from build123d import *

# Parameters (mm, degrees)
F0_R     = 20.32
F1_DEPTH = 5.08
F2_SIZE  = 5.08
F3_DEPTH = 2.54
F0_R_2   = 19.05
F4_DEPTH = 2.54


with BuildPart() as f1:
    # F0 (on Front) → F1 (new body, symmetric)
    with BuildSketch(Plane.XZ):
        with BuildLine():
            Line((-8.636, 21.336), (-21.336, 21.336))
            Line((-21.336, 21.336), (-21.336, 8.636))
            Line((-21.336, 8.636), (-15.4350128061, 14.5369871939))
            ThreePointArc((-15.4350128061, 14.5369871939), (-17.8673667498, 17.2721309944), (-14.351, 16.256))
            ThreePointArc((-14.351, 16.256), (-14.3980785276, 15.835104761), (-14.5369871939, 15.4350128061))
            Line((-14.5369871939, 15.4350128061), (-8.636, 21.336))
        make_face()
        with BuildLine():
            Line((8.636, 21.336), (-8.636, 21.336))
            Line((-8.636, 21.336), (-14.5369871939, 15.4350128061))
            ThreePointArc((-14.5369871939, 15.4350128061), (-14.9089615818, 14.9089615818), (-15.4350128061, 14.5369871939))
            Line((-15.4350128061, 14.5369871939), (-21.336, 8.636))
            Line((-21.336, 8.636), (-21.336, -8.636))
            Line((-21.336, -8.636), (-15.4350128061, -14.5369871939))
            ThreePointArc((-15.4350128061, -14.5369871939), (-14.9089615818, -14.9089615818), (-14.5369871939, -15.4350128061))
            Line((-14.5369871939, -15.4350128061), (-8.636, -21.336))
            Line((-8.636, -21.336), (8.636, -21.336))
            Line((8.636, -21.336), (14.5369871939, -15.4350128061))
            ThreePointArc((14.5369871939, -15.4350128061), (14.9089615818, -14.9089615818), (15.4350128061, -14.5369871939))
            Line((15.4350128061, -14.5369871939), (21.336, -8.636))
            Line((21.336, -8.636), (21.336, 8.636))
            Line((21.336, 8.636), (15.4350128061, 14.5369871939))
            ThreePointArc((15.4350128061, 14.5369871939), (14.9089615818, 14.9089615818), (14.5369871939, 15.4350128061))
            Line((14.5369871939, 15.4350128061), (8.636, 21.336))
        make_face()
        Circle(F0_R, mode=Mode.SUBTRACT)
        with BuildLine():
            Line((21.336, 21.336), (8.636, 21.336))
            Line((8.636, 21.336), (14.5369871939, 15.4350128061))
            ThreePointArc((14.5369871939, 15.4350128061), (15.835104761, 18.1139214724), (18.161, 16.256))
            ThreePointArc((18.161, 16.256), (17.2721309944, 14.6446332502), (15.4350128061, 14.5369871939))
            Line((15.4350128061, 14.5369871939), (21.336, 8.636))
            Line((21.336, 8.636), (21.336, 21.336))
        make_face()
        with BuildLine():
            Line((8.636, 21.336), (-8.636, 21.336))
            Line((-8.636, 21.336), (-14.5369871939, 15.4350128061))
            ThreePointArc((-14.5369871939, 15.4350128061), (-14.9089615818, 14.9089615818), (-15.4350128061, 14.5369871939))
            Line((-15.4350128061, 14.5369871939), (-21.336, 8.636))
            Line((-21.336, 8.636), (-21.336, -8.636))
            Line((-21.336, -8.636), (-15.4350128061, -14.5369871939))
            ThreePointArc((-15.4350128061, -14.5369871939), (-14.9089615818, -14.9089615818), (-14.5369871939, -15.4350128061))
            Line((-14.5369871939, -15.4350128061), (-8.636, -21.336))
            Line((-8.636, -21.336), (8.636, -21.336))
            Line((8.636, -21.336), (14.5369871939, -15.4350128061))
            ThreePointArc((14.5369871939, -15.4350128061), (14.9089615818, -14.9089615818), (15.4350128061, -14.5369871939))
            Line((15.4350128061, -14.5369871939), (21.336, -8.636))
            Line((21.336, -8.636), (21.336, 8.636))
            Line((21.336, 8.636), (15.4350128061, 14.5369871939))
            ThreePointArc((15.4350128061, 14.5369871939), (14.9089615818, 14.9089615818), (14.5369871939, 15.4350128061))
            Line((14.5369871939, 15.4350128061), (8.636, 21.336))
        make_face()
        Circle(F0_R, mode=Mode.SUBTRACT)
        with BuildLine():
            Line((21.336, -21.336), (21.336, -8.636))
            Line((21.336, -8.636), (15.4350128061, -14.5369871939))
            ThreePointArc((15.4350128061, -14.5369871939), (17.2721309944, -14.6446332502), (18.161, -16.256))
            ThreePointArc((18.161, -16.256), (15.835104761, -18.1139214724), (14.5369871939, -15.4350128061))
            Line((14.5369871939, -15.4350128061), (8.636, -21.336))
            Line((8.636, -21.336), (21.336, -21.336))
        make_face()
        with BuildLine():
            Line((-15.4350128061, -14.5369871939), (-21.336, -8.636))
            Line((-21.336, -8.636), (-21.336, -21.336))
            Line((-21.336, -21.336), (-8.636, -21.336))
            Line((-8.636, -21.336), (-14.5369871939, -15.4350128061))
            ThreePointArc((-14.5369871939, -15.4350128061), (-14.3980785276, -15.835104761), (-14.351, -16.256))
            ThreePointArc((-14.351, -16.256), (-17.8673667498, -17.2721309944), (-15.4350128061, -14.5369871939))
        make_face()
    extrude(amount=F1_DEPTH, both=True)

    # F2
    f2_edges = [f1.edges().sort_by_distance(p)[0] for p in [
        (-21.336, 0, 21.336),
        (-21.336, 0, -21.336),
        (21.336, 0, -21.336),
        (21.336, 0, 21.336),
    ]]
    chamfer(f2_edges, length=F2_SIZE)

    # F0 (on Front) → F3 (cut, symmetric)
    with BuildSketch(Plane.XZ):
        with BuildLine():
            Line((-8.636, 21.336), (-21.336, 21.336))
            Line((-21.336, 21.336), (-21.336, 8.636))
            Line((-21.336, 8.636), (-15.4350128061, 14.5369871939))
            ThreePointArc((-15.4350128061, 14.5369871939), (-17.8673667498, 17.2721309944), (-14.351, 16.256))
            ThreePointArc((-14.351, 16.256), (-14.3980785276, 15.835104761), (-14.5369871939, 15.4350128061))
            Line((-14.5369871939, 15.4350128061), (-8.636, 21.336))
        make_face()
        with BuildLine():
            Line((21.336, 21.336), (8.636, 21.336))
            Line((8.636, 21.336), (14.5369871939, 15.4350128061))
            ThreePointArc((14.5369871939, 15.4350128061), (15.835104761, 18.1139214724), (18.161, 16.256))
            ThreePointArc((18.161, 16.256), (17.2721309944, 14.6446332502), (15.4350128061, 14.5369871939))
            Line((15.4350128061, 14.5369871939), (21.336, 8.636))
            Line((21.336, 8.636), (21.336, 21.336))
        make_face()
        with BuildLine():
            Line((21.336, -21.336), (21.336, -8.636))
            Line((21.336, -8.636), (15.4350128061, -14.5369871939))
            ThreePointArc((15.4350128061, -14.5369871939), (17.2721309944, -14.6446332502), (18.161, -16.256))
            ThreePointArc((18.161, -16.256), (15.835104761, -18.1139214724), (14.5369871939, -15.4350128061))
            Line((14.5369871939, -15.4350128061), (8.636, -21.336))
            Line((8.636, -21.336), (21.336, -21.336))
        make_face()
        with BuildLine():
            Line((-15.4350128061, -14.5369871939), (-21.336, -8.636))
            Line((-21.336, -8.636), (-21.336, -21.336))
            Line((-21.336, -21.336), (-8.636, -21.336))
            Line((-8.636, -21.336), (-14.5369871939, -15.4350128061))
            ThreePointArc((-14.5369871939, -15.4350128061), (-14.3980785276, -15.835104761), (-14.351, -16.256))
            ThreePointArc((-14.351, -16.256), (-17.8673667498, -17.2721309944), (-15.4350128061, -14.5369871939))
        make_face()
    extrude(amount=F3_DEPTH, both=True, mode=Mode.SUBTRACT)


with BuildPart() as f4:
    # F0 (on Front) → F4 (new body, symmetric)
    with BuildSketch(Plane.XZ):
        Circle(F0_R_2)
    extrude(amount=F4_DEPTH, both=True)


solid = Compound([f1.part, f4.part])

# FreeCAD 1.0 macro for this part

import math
import FreeCAD as App
import Part
import Sketcher

V = App.Vector
Q = App.Units.Quantity


def edges_at(feature, points):
    """Names of the edges that pass closest to the given points."""
    edges = feature.Shape.Edges
    near = lambda p: min(range(len(edges)), key=lambda i: edges[i].distToShape(Part.Vertex(*p))[0])
    return sorted({f"Edge{near(p) + 1}" for p in points})

doc = App.newDocument("Part")
body = doc.addObject("PartDesign::Body", "Body")

# Sketch on XZ plane
sketch1 = body.newObject("Sketcher::SketchObject", "Sketch")
sketch1.AttachmentSupport = (doc.getObject("XZ_Plane"), [""])
sketch1.MapMode = "FlatFace"
sketch1.addGeometry([
    Part.LineSegment(V(-21.3, 21.3, 0), V(-21.3, -21.3, 0)),  # 0
    Part.LineSegment(V(-21.3, -21.3, 0), V(21.3, -21.3, 0)),  # 1
    Part.LineSegment(V(21.3, -21.3, 0), V(21.3, 21.3, 0)),  # 2
    Part.LineSegment(V(21.3, 21.3, 0), V(-21.3, 21.3, 0)),  # 3
    Part.ArcOfCircle(Part.Circle(V(-16.3, -16.3, 0), V(0, 0, 1), 1.9), math.radians(26), math.radians(64)),  # 4
    Part.ArcOfCircle(Part.Circle(V(-16.3, -16.3, 0), V(0, 0, 1), 1.9), math.radians(0), math.radians(26)),  # 5
    Part.ArcOfCircle(Part.Circle(V(-16.3, -16.3, 0), V(0, 0, 1), 1.9), math.radians(64), math.radians(360)),  # 6
    Part.ArcOfCircle(Part.Circle(V(16.3, -16.3, 0), V(0, 0, 1), 1.9), math.radians(116), math.radians(154)),  # 7
    Part.ArcOfCircle(Part.Circle(V(16.3, -16.3, 0), V(0, 0, 1), 1.9), math.radians(0), math.radians(116)),  # 8
    Part.ArcOfCircle(Part.Circle(V(16.3, -16.3, 0), V(0, 0, 1), 1.9), math.radians(154), math.radians(360)),  # 9
    Part.Circle(V(0, 0, 0), V(0, 0, 1), 20.3),  # 10
    Part.ArcOfCircle(Part.Circle(V(-16.3, 16.3, 0), V(0, 0, 1), 1.9), math.radians(-26), math.radians(0)),  # 11
    Part.ArcOfCircle(Part.Circle(V(-16.3, 16.3, 0), V(0, 0, 1), 1.9), math.radians(-64), math.radians(-26)),  # 12
    Part.ArcOfCircle(Part.Circle(V(-16.3, 16.3, 0), V(0, 0, 1), 1.9), math.radians(0), math.radians(296)),  # 13
    Part.ArcOfCircle(Part.Circle(V(16.3, 16.3, 0), V(0, 0, 1), 1.9), math.radians(-154), math.radians(-116)),  # 14
    Part.ArcOfCircle(Part.Circle(V(16.3, 16.3, 0), V(0, 0, 1), 1.9), math.radians(0), math.radians(206)),  # 15
    Part.ArcOfCircle(Part.Circle(V(16.3, 16.3, 0), V(0, 0, 1), 1.9), math.radians(-116), math.radians(0)),  # 16
], False)
sketch1.addConstraint([
    Sketcher.Constraint("Coincident", 0, 2, 1, 1),
    Sketcher.Constraint("Coincident", 1, 2, 2, 1),
    Sketcher.Constraint("Coincident", 2, 2, 3, 1),
    Sketcher.Constraint("Coincident", 3, 2, 0, 1),
    Sketcher.Constraint("Tangent", 4, 1, 5, 2),
    Sketcher.Constraint("Tangent", 5, 1, 6, 2),
    Sketcher.Constraint("Tangent", 6, 1, 4, 2),
    Sketcher.Constraint("Tangent", 7, 1, 8, 2),
    Sketcher.Constraint("Tangent", 8, 1, 9, 2),
    Sketcher.Constraint("Tangent", 9, 1, 7, 2),
    Sketcher.Constraint("Tangent", 11, 1, 12, 2),
    Sketcher.Constraint("Tangent", 12, 1, 13, 2),
    Sketcher.Constraint("Tangent", 13, 1, 11, 2),
    Sketcher.Constraint("Tangent", 14, 1, 15, 2),
    Sketcher.Constraint("Tangent", 15, 1, 16, 2),
    Sketcher.Constraint("Tangent", 16, 1, 14, 2),
    Sketcher.Constraint("Vertical", 0),
    Sketcher.Constraint("Horizontal", 1),
    Sketcher.Constraint("Vertical", 2),
    Sketcher.Constraint("Horizontal", 3),
    Sketcher.Constraint("Coincident", 10, 3, -1, 1),
    Sketcher.Constraint("Equal", 6, 7),
    Sketcher.Constraint("Equal", 9, 11),
    Sketcher.Constraint("Equal", 13, 14),
    Sketcher.Constraint("Symmetric", 7, 3, 11, 3, -1, 1),
    Sketcher.Constraint("Symmetric", 4, 3, 14, 3, -1, 1),
    Sketcher.Constraint("Symmetric", 0, 2, 2, 2, -1, 1),
    Sketcher.Constraint("Symmetric", 4, 3, 7, 3, -2),
    Sketcher.Constraint("Horizontal", 9, 3, 5, 1),
    Sketcher.Constraint("Horizontal", 6, 1, 7, 1),
    Sketcher.Constraint("Horizontal", 5, 1, 8, 1),
    Sketcher.Constraint("Horizontal", 4, 1, 9, 1),
    Sketcher.Constraint("Horizontal", 16, 3, 13, 1),
    Sketcher.Constraint("Horizontal", 11, 1, 14, 1),
    Sketcher.Constraint("Horizontal", 13, 1, 15, 1),
    Sketcher.Constraint("Horizontal", 12, 1, 16, 1),
    Sketcher.Constraint("Vertical", 4, 1, 11, 1),
    Sketcher.Constraint("Vertical", 6, 1, 12, 1),
    Sketcher.Constraint("Equal", 3, 0),
    Sketcher.Constraint("Diameter", 10, Q("1.6 in")),
    Sketcher.Constraint("Radius", 4, Q("0.075 in")),
    Sketcher.Constraint("DistanceX", 1, 1, 1, 2, Q("1.68 in")),
    Sketcher.Constraint("DistanceX", 0, 2, 5, 3, Q("0.2 in")),
    Sketcher.Constraint("DistanceY", 0, 2, 5, 3, Q("0.2 in")),
    Sketcher.Constraint("DistanceX", 4, 1, -1, 1, Q("14.536987 mm")),
    Sketcher.Constraint("DistanceX", 6, 1, -1, 1, Q("15.435013 mm")),
])
pad1 = body.newObject("PartDesign::Pad", "Pad")
pad1.Profile = sketch1
pad1.Length = Q("0.4 in")
pad1.Midplane = True
doc.recompute()

chamfer = body.newObject("PartDesign::Chamfer", "Chamfer")
chamfer.Base = (pad1, edges_at(pad1, [
    (-21.336, 0, 21.336),
    (-21.336, 0, -21.336),
    (21.336, 0, -21.336),
    (21.336, 0, 21.336),
]))
chamfer.Size = Q("0.2 in")

# Sketch on XZ plane
sketch2 = body.newObject("Sketcher::SketchObject", "Sketch001")
sketch2.AttachmentSupport = (doc.getObject("XZ_Plane"), [""])
sketch2.MapMode = "FlatFace"
sketch2.addGeometry([
    Part.LineSegment(V(-8.6, 21.3, 0), V(-21.3, 21.3, 0)),  # 0
    Part.LineSegment(V(-21.3, 21.3, 0), V(-21.3, 8.6, 0)),  # 1
    Part.LineSegment(V(-21.3, 8.6, 0), V(-15.4, 14.5, 0)),  # 2
    Part.ArcOfCircle(Part.Circle(V(-16.3, 16.3, 0), V(0, 0, 1), 1.9), math.radians(0), math.radians(296)),  # 3
    Part.ArcOfCircle(Part.Circle(V(-16.3, 16.3, 0), V(0, 0, 1), 1.9), math.radians(-26), math.radians(0)),  # 4
    Part.LineSegment(V(-14.5, 15.4, 0), V(-8.6, 21.3, 0)),  # 5
    Part.LineSegment(V(21.3, 21.3, 0), V(8.6, 21.3, 0)),  # 6
    Part.LineSegment(V(8.6, 21.3, 0), V(14.5, 15.4, 0)),  # 7
    Part.ArcOfCircle(Part.Circle(V(16.3, 16.3, 0), V(0, 0, 1), 1.9), math.radians(0), math.radians(206)),  # 8
    Part.ArcOfCircle(Part.Circle(V(16.3, 16.3, 0), V(0, 0, 1), 1.9), math.radians(-116), math.radians(0)),  # 9
    Part.LineSegment(V(15.4, 14.5, 0), V(21.3, 8.6, 0)),  # 10
    Part.LineSegment(V(21.3, 8.6, 0), V(21.3, 21.3, 0)),  # 11
    Part.LineSegment(V(21.3, -21.3, 0), V(21.3, -8.6, 0)),  # 12
    Part.LineSegment(V(21.3, -8.6, 0), V(15.4, -14.5, 0)),  # 13
    Part.ArcOfCircle(Part.Circle(V(16.3, -16.3, 0), V(0, 0, 1), 1.9), math.radians(0), math.radians(116)),  # 14
    Part.ArcOfCircle(Part.Circle(V(16.3, -16.3, 0), V(0, 0, 1), 1.9), math.radians(154), math.radians(360)),  # 15
    Part.LineSegment(V(14.5, -15.4, 0), V(8.6, -21.3, 0)),  # 16
    Part.LineSegment(V(8.6, -21.3, 0), V(21.3, -21.3, 0)),  # 17
    Part.LineSegment(V(-15.4, -14.5, 0), V(-21.3, -8.6, 0)),  # 18
    Part.LineSegment(V(-21.3, -8.6, 0), V(-21.3, -21.3, 0)),  # 19
    Part.LineSegment(V(-21.3, -21.3, 0), V(-8.6, -21.3, 0)),  # 20
    Part.LineSegment(V(-8.6, -21.3, 0), V(-14.5, -15.4, 0)),  # 21
    Part.ArcOfCircle(Part.Circle(V(-16.3, -16.3, 0), V(0, 0, 1), 1.9), math.radians(0), math.radians(26)),  # 22
    Part.ArcOfCircle(Part.Circle(V(-16.3, -16.3, 0), V(0, 0, 1), 1.9), math.radians(64), math.radians(360)),  # 23
], False)
sketch2.addConstraint([
    Sketcher.Constraint("Coincident", 0, 2, 1, 1),
    Sketcher.Constraint("Coincident", 1, 2, 2, 1),
    Sketcher.Constraint("Coincident", 2, 2, 3, 2),
    Sketcher.Constraint("Tangent", 3, 1, 4, 2),
    Sketcher.Constraint("Coincident", 4, 1, 5, 1),
    Sketcher.Constraint("Coincident", 5, 2, 0, 1),
    Sketcher.Constraint("Coincident", 6, 2, 7, 1),
    Sketcher.Constraint("Coincident", 7, 2, 8, 2),
    Sketcher.Constraint("Tangent", 8, 1, 9, 2),
    Sketcher.Constraint("Coincident", 9, 1, 10, 1),
    Sketcher.Constraint("Coincident", 10, 2, 11, 1),
    Sketcher.Constraint("Coincident", 11, 2, 6, 1),
    Sketcher.Constraint("Coincident", 12, 2, 13, 1),
    Sketcher.Constraint("Coincident", 13, 2, 14, 2),
    Sketcher.Constraint("Tangent", 14, 1, 15, 2),
    Sketcher.Constraint("Coincident", 15, 1, 16, 1),
    Sketcher.Constraint("Coincident", 16, 2, 17, 1),
    Sketcher.Constraint("Coincident", 17, 2, 12, 1),
    Sketcher.Constraint("Coincident", 18, 2, 19, 1),
    Sketcher.Constraint("Coincident", 19, 2, 20, 1),
    Sketcher.Constraint("Coincident", 20, 2, 21, 1),
    Sketcher.Constraint("Coincident", 21, 2, 22, 2),
    Sketcher.Constraint("Tangent", 22, 1, 23, 2),
    Sketcher.Constraint("Coincident", 23, 1, 18, 1),
    Sketcher.Constraint("Horizontal", 0),
    Sketcher.Constraint("Vertical", 1),
    Sketcher.Constraint("Horizontal", 6),
    Sketcher.Constraint("Vertical", 11),
    Sketcher.Constraint("Vertical", 12),
    Sketcher.Constraint("Horizontal", 17),
    Sketcher.Constraint("Vertical", 19),
    Sketcher.Constraint("Horizontal", 20),
    Sketcher.Constraint("Equal", 3, 4),
    Sketcher.Constraint("Equal", 4, 8),
    Sketcher.Constraint("Equal", 8, 9),
    Sketcher.Constraint("Equal", 9, 14),
    Sketcher.Constraint("Equal", 14, 15),
    Sketcher.Constraint("Equal", 15, 22),
    Sketcher.Constraint("Equal", 22, 23),
    Sketcher.Constraint("Symmetric", 3, 3, 14, 3, -1, 1),
    Sketcher.Constraint("Symmetric", 8, 3, 22, 3, -1, 1),
    Sketcher.Constraint("Symmetric", 1, 2, 12, 2, -1, 1),
    Sketcher.Constraint("Symmetric", 5, 2, 16, 2, -1, 1),
    Sketcher.Constraint("Symmetric", 10, 2, 18, 2, -1, 1),
    Sketcher.Constraint("Symmetric", 6, 2, 20, 2, -1, 1),
    Sketcher.Constraint("Symmetric", 3, 3, 8, 3, -2),
    Sketcher.Constraint("Symmetric", 5, 2, 6, 2, -2),
    Sketcher.Constraint("Symmetric", 1, 2, 10, 2, -2),
    Sketcher.Constraint("Parallel", 2, 5),
    Sketcher.Constraint("Perpendicular", 5, 7),
    Sketcher.Constraint("Parallel", 7, 10),
    Sketcher.Constraint("Perpendicular", 10, 13),
    Sketcher.Constraint("Parallel", 13, 16),
    Sketcher.Constraint("Perpendicular", 16, 18),
    Sketcher.Constraint("Parallel", 18, 21),
    Sketcher.Constraint("Horizontal", 9, 3, 3, 1),
    Sketcher.Constraint("Horizontal", 4, 1, 7, 2),
    Sketcher.Constraint("Horizontal", 3, 1, 8, 1),
    Sketcher.Constraint("Horizontal", 23, 3, 14, 1),
    Sketcher.Constraint("Horizontal", 14, 1, 22, 1),
    Sketcher.Constraint("Equal", 20, 1),
    Sketcher.Constraint("Equal", 2, 5),
    Sketcher.Constraint("DistanceX", 0, 2, 0, 1, Q("0.5 in")),
    Sketcher.Constraint("Radius", 3, Q("0.075 in")),
    Sketcher.Constraint("DistanceX", 0, 2, 4, 3, Q("0.2 in")),
    Sketcher.Constraint("DistanceX", 3, 3, -1, 1, Q("0.64 in")),
    Sketcher.Constraint("DistanceY", -1, 1, 3, 3, Q("0.64 in")),
])
pocket1 = body.newObject("PartDesign::Pocket", "Pocket")
pocket1.Profile = sketch2
pocket1.Length = Q("0.2 in")
pocket1.Midplane = True
body2 = doc.addObject("PartDesign::Body", "Body001")

# Sketch on XZ plane
sketch3 = body2.newObject("Sketcher::SketchObject", "Sketch002")
sketch3.AttachmentSupport = (doc.getObject("XZ_Plane001"), [""])
sketch3.MapMode = "FlatFace"
sketch3.addGeometry(Part.Circle(V(0, 0, 0), V(0, 0, 1), 19), False)
sketch3.addConstraint([
    Sketcher.Constraint("Coincident", 0, 3, -1, 1),
    Sketcher.Constraint("Diameter", 0, Q("1.5 in")),
])
pad2 = body2.newObject("PartDesign::Pad", "Pad001")
pad2.Profile = sketch3
pad2.Length = Q("0.2 in")
pad2.Midplane = True

doc.recompute()
